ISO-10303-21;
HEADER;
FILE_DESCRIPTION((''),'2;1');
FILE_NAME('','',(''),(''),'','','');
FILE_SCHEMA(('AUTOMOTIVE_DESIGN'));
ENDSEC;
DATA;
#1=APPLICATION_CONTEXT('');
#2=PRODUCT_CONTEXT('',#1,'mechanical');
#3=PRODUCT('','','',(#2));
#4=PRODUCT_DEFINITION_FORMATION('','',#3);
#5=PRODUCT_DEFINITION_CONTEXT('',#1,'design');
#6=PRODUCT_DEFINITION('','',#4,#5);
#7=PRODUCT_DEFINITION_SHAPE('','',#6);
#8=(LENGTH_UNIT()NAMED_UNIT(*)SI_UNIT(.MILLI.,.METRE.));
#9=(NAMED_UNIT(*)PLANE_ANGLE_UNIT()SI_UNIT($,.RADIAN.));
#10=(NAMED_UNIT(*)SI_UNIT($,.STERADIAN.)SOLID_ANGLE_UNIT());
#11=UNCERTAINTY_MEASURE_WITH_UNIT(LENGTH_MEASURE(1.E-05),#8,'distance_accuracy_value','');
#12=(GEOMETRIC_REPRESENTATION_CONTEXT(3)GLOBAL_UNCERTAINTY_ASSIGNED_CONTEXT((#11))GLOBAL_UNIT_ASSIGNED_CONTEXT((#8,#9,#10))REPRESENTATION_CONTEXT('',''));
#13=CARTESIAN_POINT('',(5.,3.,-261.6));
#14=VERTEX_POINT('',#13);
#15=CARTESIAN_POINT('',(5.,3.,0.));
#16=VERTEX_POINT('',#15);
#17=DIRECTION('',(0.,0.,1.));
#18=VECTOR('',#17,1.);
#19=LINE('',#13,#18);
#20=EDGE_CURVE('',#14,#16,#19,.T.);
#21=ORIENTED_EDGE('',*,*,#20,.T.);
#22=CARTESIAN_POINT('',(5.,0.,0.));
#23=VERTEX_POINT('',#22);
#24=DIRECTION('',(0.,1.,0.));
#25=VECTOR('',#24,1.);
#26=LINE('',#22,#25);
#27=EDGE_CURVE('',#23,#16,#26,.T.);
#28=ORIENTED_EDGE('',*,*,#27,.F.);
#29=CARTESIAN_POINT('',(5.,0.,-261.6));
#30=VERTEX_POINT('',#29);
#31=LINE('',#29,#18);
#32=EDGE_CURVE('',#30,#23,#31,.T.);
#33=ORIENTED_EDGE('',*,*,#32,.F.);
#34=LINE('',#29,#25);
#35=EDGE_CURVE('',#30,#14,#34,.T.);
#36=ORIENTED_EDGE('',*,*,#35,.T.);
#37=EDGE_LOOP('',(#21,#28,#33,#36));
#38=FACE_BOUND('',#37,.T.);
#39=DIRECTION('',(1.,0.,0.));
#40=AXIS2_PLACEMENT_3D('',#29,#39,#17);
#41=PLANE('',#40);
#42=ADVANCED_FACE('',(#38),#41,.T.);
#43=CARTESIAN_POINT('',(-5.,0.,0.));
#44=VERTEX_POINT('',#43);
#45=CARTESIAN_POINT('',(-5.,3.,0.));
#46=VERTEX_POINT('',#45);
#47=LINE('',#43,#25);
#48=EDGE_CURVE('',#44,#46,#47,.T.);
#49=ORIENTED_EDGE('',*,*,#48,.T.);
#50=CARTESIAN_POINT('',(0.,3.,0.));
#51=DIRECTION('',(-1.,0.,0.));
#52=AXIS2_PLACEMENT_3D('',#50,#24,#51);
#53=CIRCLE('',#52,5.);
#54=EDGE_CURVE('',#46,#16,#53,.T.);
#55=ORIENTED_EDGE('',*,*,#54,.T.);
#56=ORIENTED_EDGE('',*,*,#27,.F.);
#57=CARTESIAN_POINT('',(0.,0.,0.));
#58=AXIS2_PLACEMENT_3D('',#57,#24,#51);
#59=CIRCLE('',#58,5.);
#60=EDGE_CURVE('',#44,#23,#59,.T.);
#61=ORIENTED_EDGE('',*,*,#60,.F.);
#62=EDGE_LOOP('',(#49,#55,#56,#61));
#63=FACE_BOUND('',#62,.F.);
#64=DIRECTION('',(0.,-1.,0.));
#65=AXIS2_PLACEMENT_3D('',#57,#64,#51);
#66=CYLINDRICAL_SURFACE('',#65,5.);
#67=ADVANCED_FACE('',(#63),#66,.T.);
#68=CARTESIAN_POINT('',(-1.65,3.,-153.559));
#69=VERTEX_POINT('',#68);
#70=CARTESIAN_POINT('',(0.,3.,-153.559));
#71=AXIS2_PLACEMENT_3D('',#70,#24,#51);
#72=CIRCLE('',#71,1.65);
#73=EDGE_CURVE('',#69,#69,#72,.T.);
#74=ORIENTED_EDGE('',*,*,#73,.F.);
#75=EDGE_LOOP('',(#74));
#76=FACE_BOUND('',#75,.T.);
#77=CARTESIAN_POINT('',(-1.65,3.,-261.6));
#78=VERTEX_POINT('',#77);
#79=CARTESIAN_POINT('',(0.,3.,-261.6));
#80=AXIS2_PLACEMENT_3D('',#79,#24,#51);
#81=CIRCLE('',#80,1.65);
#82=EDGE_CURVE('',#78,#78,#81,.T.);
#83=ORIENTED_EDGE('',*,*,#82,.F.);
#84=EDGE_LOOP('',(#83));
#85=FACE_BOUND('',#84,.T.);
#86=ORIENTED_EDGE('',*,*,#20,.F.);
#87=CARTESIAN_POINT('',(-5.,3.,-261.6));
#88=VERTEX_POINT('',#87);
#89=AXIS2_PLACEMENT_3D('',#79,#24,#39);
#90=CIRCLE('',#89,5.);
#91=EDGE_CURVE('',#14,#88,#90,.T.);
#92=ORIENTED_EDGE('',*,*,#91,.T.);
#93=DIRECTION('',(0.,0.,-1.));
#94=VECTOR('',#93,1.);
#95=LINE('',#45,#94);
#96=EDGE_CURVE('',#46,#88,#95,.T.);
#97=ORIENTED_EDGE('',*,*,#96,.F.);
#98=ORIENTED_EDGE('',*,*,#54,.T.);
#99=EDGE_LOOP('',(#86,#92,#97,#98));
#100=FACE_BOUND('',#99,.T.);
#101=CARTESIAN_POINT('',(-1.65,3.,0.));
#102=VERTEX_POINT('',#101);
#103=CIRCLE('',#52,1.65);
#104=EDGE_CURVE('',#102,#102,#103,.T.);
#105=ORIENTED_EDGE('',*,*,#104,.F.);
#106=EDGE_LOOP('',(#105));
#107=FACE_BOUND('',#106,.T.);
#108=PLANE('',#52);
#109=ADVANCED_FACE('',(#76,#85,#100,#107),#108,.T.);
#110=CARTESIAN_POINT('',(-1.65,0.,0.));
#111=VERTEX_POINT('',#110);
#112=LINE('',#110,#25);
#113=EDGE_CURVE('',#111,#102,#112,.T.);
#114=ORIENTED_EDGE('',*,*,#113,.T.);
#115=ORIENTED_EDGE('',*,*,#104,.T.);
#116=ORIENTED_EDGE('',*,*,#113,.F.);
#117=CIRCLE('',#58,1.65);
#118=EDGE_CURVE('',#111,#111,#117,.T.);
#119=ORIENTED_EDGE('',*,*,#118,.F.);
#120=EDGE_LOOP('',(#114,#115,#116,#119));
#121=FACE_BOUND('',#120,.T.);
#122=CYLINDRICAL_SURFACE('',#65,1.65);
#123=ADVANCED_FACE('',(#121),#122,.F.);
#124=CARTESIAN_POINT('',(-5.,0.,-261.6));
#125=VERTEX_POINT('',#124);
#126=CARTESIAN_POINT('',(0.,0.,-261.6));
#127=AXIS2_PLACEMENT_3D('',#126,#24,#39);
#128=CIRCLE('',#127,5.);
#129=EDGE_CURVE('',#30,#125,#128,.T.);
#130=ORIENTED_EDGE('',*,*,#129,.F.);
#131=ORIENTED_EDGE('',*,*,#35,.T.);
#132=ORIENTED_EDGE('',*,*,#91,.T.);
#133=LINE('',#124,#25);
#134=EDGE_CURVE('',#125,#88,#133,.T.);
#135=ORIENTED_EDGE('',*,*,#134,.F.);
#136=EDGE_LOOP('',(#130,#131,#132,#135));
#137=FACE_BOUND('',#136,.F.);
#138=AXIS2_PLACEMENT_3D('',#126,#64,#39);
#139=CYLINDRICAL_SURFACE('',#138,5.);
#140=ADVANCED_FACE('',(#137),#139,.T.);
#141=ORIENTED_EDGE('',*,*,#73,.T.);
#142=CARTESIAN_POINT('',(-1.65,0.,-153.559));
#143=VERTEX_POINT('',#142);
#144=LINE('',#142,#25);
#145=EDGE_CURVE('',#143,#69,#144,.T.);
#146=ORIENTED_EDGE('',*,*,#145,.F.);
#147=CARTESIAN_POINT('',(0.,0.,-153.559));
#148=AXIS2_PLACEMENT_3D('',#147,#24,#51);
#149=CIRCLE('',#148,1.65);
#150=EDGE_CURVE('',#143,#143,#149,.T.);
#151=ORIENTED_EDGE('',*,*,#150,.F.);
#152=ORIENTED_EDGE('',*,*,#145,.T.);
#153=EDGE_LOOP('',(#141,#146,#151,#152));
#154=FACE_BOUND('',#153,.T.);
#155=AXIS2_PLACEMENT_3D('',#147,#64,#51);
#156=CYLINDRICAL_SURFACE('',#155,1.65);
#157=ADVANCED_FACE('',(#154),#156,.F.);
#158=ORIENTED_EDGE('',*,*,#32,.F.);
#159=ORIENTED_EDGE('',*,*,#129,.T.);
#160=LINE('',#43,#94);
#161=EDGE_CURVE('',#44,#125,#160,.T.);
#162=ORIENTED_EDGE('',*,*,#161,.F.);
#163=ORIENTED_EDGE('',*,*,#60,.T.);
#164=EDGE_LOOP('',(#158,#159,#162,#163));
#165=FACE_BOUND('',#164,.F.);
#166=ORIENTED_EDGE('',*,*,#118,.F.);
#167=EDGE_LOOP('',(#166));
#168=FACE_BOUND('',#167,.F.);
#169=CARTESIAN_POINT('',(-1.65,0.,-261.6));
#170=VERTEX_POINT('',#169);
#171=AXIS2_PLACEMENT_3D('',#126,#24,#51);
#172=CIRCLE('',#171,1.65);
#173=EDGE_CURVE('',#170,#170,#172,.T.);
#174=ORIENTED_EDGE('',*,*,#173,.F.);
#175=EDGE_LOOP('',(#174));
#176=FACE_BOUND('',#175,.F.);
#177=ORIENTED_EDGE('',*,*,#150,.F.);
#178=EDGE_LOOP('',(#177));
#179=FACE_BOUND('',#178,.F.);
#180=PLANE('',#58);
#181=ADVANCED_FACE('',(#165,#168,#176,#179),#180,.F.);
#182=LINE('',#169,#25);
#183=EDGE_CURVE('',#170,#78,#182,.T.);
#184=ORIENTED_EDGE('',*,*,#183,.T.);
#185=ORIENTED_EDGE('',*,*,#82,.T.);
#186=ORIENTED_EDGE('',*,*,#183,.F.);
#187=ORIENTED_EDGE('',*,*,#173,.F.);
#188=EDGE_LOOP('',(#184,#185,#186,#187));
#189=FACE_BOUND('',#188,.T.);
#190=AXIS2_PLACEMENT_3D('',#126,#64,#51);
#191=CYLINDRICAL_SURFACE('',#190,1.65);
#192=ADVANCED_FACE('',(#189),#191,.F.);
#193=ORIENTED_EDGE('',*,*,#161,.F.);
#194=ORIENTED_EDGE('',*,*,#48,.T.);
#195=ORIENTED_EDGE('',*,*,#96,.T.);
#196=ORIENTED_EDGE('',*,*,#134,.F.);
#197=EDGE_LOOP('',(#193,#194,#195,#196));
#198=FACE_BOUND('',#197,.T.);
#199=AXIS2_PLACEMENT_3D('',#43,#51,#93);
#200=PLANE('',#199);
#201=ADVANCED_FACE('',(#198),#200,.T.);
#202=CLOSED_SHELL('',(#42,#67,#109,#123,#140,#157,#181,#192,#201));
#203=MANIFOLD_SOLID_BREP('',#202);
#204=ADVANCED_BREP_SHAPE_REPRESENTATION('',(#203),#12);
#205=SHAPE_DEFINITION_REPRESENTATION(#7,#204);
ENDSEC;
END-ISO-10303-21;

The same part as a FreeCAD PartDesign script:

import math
import FreeCAD as App
import Part
import Sketcher
from FreeCAD import Vector
Q = App.Units.Quantity

doc = App.newDocument("Part")
body = doc.addObject("PartDesign::Body", "Body")

# Sketch on XZ plane
sketch1 = body.newObject("Sketcher::SketchObject", "Sketch")
sketch1.AttachmentSupport = (doc.getObject("XZ_Plane"), [""])
sketch1.MapMode = "FlatFace"
sketch1.addGeometry([
    Part.LineSegment(Vector(-5, -261.6, 0), Vector(-5, 0, 0)),  # 0
    Part.ArcOfCircle(Part.Circle(Vector(0, 0, 0), Vector(0, 0, 1), 5), math.radians(0), math.radians(180)),  # 1
    Part.LineSegment(Vector(5, 0, 0), Vector(5, -261.6, 0)),  # 2
    Part.ArcOfCircle(Part.Circle(Vector(0, -261.6, 0), Vector(0, 0, 1), 5), math.radians(180), math.radians(360)),  # 3
    Part.Circle(Vector(0, -261.6, 0), Vector(0, 0, 1), 1.6),  # 4
    Part.Circle(Vector(0, -153.6, 0), Vector(0, 0, 1), 1.6),  # 5
    Part.Circle(Vector(0, 0, 0), Vector(0, 0, 1), 1.6),  # 6
], False)
sketch1.addConstraint([
    Sketcher.Constraint("Tangent", 0, 2, 1, 2),
    Sketcher.Constraint("Tangent", 1, 1, 2, 1),
    Sketcher.Constraint("Tangent", 2, 2, 3, 2),
    Sketcher.Constraint("Tangent", 3, 1, 0, 1),
    Sketcher.Constraint("Vertical", 0),
    Sketcher.Constraint("Vertical", 2),
    Sketcher.Constraint("Coincident", 1, 3, -1, 1),
    Sketcher.Constraint("Coincident", 6, 3, -1, 1),
    Sketcher.Constraint("Coincident", 4, 3, 3, 3),
    Sketcher.Constraint("Equal", 4, 5),
    Sketcher.Constraint("Equal", 5, 6),
    Sketcher.Constraint("PointOnObject", 5, 3, -2),
    Sketcher.Constraint("Radius", 1, Q("5 mm")),
    Sketcher.Constraint("Diameter", 4, Q("3.3 mm")),
    Sketcher.Constraint("DistanceY", 0, 1, 0, 2, Q("261.6 mm")),
    Sketcher.Constraint("DistanceY", 5, 3, -1, 1, Q("153.559 mm")),
])
pad1 = body.newObject("PartDesign::Pad", "Pad")
pad1.Profile = sketch1
pad1.Length = 3
pad1.Reversed = True

doc.recompute()
